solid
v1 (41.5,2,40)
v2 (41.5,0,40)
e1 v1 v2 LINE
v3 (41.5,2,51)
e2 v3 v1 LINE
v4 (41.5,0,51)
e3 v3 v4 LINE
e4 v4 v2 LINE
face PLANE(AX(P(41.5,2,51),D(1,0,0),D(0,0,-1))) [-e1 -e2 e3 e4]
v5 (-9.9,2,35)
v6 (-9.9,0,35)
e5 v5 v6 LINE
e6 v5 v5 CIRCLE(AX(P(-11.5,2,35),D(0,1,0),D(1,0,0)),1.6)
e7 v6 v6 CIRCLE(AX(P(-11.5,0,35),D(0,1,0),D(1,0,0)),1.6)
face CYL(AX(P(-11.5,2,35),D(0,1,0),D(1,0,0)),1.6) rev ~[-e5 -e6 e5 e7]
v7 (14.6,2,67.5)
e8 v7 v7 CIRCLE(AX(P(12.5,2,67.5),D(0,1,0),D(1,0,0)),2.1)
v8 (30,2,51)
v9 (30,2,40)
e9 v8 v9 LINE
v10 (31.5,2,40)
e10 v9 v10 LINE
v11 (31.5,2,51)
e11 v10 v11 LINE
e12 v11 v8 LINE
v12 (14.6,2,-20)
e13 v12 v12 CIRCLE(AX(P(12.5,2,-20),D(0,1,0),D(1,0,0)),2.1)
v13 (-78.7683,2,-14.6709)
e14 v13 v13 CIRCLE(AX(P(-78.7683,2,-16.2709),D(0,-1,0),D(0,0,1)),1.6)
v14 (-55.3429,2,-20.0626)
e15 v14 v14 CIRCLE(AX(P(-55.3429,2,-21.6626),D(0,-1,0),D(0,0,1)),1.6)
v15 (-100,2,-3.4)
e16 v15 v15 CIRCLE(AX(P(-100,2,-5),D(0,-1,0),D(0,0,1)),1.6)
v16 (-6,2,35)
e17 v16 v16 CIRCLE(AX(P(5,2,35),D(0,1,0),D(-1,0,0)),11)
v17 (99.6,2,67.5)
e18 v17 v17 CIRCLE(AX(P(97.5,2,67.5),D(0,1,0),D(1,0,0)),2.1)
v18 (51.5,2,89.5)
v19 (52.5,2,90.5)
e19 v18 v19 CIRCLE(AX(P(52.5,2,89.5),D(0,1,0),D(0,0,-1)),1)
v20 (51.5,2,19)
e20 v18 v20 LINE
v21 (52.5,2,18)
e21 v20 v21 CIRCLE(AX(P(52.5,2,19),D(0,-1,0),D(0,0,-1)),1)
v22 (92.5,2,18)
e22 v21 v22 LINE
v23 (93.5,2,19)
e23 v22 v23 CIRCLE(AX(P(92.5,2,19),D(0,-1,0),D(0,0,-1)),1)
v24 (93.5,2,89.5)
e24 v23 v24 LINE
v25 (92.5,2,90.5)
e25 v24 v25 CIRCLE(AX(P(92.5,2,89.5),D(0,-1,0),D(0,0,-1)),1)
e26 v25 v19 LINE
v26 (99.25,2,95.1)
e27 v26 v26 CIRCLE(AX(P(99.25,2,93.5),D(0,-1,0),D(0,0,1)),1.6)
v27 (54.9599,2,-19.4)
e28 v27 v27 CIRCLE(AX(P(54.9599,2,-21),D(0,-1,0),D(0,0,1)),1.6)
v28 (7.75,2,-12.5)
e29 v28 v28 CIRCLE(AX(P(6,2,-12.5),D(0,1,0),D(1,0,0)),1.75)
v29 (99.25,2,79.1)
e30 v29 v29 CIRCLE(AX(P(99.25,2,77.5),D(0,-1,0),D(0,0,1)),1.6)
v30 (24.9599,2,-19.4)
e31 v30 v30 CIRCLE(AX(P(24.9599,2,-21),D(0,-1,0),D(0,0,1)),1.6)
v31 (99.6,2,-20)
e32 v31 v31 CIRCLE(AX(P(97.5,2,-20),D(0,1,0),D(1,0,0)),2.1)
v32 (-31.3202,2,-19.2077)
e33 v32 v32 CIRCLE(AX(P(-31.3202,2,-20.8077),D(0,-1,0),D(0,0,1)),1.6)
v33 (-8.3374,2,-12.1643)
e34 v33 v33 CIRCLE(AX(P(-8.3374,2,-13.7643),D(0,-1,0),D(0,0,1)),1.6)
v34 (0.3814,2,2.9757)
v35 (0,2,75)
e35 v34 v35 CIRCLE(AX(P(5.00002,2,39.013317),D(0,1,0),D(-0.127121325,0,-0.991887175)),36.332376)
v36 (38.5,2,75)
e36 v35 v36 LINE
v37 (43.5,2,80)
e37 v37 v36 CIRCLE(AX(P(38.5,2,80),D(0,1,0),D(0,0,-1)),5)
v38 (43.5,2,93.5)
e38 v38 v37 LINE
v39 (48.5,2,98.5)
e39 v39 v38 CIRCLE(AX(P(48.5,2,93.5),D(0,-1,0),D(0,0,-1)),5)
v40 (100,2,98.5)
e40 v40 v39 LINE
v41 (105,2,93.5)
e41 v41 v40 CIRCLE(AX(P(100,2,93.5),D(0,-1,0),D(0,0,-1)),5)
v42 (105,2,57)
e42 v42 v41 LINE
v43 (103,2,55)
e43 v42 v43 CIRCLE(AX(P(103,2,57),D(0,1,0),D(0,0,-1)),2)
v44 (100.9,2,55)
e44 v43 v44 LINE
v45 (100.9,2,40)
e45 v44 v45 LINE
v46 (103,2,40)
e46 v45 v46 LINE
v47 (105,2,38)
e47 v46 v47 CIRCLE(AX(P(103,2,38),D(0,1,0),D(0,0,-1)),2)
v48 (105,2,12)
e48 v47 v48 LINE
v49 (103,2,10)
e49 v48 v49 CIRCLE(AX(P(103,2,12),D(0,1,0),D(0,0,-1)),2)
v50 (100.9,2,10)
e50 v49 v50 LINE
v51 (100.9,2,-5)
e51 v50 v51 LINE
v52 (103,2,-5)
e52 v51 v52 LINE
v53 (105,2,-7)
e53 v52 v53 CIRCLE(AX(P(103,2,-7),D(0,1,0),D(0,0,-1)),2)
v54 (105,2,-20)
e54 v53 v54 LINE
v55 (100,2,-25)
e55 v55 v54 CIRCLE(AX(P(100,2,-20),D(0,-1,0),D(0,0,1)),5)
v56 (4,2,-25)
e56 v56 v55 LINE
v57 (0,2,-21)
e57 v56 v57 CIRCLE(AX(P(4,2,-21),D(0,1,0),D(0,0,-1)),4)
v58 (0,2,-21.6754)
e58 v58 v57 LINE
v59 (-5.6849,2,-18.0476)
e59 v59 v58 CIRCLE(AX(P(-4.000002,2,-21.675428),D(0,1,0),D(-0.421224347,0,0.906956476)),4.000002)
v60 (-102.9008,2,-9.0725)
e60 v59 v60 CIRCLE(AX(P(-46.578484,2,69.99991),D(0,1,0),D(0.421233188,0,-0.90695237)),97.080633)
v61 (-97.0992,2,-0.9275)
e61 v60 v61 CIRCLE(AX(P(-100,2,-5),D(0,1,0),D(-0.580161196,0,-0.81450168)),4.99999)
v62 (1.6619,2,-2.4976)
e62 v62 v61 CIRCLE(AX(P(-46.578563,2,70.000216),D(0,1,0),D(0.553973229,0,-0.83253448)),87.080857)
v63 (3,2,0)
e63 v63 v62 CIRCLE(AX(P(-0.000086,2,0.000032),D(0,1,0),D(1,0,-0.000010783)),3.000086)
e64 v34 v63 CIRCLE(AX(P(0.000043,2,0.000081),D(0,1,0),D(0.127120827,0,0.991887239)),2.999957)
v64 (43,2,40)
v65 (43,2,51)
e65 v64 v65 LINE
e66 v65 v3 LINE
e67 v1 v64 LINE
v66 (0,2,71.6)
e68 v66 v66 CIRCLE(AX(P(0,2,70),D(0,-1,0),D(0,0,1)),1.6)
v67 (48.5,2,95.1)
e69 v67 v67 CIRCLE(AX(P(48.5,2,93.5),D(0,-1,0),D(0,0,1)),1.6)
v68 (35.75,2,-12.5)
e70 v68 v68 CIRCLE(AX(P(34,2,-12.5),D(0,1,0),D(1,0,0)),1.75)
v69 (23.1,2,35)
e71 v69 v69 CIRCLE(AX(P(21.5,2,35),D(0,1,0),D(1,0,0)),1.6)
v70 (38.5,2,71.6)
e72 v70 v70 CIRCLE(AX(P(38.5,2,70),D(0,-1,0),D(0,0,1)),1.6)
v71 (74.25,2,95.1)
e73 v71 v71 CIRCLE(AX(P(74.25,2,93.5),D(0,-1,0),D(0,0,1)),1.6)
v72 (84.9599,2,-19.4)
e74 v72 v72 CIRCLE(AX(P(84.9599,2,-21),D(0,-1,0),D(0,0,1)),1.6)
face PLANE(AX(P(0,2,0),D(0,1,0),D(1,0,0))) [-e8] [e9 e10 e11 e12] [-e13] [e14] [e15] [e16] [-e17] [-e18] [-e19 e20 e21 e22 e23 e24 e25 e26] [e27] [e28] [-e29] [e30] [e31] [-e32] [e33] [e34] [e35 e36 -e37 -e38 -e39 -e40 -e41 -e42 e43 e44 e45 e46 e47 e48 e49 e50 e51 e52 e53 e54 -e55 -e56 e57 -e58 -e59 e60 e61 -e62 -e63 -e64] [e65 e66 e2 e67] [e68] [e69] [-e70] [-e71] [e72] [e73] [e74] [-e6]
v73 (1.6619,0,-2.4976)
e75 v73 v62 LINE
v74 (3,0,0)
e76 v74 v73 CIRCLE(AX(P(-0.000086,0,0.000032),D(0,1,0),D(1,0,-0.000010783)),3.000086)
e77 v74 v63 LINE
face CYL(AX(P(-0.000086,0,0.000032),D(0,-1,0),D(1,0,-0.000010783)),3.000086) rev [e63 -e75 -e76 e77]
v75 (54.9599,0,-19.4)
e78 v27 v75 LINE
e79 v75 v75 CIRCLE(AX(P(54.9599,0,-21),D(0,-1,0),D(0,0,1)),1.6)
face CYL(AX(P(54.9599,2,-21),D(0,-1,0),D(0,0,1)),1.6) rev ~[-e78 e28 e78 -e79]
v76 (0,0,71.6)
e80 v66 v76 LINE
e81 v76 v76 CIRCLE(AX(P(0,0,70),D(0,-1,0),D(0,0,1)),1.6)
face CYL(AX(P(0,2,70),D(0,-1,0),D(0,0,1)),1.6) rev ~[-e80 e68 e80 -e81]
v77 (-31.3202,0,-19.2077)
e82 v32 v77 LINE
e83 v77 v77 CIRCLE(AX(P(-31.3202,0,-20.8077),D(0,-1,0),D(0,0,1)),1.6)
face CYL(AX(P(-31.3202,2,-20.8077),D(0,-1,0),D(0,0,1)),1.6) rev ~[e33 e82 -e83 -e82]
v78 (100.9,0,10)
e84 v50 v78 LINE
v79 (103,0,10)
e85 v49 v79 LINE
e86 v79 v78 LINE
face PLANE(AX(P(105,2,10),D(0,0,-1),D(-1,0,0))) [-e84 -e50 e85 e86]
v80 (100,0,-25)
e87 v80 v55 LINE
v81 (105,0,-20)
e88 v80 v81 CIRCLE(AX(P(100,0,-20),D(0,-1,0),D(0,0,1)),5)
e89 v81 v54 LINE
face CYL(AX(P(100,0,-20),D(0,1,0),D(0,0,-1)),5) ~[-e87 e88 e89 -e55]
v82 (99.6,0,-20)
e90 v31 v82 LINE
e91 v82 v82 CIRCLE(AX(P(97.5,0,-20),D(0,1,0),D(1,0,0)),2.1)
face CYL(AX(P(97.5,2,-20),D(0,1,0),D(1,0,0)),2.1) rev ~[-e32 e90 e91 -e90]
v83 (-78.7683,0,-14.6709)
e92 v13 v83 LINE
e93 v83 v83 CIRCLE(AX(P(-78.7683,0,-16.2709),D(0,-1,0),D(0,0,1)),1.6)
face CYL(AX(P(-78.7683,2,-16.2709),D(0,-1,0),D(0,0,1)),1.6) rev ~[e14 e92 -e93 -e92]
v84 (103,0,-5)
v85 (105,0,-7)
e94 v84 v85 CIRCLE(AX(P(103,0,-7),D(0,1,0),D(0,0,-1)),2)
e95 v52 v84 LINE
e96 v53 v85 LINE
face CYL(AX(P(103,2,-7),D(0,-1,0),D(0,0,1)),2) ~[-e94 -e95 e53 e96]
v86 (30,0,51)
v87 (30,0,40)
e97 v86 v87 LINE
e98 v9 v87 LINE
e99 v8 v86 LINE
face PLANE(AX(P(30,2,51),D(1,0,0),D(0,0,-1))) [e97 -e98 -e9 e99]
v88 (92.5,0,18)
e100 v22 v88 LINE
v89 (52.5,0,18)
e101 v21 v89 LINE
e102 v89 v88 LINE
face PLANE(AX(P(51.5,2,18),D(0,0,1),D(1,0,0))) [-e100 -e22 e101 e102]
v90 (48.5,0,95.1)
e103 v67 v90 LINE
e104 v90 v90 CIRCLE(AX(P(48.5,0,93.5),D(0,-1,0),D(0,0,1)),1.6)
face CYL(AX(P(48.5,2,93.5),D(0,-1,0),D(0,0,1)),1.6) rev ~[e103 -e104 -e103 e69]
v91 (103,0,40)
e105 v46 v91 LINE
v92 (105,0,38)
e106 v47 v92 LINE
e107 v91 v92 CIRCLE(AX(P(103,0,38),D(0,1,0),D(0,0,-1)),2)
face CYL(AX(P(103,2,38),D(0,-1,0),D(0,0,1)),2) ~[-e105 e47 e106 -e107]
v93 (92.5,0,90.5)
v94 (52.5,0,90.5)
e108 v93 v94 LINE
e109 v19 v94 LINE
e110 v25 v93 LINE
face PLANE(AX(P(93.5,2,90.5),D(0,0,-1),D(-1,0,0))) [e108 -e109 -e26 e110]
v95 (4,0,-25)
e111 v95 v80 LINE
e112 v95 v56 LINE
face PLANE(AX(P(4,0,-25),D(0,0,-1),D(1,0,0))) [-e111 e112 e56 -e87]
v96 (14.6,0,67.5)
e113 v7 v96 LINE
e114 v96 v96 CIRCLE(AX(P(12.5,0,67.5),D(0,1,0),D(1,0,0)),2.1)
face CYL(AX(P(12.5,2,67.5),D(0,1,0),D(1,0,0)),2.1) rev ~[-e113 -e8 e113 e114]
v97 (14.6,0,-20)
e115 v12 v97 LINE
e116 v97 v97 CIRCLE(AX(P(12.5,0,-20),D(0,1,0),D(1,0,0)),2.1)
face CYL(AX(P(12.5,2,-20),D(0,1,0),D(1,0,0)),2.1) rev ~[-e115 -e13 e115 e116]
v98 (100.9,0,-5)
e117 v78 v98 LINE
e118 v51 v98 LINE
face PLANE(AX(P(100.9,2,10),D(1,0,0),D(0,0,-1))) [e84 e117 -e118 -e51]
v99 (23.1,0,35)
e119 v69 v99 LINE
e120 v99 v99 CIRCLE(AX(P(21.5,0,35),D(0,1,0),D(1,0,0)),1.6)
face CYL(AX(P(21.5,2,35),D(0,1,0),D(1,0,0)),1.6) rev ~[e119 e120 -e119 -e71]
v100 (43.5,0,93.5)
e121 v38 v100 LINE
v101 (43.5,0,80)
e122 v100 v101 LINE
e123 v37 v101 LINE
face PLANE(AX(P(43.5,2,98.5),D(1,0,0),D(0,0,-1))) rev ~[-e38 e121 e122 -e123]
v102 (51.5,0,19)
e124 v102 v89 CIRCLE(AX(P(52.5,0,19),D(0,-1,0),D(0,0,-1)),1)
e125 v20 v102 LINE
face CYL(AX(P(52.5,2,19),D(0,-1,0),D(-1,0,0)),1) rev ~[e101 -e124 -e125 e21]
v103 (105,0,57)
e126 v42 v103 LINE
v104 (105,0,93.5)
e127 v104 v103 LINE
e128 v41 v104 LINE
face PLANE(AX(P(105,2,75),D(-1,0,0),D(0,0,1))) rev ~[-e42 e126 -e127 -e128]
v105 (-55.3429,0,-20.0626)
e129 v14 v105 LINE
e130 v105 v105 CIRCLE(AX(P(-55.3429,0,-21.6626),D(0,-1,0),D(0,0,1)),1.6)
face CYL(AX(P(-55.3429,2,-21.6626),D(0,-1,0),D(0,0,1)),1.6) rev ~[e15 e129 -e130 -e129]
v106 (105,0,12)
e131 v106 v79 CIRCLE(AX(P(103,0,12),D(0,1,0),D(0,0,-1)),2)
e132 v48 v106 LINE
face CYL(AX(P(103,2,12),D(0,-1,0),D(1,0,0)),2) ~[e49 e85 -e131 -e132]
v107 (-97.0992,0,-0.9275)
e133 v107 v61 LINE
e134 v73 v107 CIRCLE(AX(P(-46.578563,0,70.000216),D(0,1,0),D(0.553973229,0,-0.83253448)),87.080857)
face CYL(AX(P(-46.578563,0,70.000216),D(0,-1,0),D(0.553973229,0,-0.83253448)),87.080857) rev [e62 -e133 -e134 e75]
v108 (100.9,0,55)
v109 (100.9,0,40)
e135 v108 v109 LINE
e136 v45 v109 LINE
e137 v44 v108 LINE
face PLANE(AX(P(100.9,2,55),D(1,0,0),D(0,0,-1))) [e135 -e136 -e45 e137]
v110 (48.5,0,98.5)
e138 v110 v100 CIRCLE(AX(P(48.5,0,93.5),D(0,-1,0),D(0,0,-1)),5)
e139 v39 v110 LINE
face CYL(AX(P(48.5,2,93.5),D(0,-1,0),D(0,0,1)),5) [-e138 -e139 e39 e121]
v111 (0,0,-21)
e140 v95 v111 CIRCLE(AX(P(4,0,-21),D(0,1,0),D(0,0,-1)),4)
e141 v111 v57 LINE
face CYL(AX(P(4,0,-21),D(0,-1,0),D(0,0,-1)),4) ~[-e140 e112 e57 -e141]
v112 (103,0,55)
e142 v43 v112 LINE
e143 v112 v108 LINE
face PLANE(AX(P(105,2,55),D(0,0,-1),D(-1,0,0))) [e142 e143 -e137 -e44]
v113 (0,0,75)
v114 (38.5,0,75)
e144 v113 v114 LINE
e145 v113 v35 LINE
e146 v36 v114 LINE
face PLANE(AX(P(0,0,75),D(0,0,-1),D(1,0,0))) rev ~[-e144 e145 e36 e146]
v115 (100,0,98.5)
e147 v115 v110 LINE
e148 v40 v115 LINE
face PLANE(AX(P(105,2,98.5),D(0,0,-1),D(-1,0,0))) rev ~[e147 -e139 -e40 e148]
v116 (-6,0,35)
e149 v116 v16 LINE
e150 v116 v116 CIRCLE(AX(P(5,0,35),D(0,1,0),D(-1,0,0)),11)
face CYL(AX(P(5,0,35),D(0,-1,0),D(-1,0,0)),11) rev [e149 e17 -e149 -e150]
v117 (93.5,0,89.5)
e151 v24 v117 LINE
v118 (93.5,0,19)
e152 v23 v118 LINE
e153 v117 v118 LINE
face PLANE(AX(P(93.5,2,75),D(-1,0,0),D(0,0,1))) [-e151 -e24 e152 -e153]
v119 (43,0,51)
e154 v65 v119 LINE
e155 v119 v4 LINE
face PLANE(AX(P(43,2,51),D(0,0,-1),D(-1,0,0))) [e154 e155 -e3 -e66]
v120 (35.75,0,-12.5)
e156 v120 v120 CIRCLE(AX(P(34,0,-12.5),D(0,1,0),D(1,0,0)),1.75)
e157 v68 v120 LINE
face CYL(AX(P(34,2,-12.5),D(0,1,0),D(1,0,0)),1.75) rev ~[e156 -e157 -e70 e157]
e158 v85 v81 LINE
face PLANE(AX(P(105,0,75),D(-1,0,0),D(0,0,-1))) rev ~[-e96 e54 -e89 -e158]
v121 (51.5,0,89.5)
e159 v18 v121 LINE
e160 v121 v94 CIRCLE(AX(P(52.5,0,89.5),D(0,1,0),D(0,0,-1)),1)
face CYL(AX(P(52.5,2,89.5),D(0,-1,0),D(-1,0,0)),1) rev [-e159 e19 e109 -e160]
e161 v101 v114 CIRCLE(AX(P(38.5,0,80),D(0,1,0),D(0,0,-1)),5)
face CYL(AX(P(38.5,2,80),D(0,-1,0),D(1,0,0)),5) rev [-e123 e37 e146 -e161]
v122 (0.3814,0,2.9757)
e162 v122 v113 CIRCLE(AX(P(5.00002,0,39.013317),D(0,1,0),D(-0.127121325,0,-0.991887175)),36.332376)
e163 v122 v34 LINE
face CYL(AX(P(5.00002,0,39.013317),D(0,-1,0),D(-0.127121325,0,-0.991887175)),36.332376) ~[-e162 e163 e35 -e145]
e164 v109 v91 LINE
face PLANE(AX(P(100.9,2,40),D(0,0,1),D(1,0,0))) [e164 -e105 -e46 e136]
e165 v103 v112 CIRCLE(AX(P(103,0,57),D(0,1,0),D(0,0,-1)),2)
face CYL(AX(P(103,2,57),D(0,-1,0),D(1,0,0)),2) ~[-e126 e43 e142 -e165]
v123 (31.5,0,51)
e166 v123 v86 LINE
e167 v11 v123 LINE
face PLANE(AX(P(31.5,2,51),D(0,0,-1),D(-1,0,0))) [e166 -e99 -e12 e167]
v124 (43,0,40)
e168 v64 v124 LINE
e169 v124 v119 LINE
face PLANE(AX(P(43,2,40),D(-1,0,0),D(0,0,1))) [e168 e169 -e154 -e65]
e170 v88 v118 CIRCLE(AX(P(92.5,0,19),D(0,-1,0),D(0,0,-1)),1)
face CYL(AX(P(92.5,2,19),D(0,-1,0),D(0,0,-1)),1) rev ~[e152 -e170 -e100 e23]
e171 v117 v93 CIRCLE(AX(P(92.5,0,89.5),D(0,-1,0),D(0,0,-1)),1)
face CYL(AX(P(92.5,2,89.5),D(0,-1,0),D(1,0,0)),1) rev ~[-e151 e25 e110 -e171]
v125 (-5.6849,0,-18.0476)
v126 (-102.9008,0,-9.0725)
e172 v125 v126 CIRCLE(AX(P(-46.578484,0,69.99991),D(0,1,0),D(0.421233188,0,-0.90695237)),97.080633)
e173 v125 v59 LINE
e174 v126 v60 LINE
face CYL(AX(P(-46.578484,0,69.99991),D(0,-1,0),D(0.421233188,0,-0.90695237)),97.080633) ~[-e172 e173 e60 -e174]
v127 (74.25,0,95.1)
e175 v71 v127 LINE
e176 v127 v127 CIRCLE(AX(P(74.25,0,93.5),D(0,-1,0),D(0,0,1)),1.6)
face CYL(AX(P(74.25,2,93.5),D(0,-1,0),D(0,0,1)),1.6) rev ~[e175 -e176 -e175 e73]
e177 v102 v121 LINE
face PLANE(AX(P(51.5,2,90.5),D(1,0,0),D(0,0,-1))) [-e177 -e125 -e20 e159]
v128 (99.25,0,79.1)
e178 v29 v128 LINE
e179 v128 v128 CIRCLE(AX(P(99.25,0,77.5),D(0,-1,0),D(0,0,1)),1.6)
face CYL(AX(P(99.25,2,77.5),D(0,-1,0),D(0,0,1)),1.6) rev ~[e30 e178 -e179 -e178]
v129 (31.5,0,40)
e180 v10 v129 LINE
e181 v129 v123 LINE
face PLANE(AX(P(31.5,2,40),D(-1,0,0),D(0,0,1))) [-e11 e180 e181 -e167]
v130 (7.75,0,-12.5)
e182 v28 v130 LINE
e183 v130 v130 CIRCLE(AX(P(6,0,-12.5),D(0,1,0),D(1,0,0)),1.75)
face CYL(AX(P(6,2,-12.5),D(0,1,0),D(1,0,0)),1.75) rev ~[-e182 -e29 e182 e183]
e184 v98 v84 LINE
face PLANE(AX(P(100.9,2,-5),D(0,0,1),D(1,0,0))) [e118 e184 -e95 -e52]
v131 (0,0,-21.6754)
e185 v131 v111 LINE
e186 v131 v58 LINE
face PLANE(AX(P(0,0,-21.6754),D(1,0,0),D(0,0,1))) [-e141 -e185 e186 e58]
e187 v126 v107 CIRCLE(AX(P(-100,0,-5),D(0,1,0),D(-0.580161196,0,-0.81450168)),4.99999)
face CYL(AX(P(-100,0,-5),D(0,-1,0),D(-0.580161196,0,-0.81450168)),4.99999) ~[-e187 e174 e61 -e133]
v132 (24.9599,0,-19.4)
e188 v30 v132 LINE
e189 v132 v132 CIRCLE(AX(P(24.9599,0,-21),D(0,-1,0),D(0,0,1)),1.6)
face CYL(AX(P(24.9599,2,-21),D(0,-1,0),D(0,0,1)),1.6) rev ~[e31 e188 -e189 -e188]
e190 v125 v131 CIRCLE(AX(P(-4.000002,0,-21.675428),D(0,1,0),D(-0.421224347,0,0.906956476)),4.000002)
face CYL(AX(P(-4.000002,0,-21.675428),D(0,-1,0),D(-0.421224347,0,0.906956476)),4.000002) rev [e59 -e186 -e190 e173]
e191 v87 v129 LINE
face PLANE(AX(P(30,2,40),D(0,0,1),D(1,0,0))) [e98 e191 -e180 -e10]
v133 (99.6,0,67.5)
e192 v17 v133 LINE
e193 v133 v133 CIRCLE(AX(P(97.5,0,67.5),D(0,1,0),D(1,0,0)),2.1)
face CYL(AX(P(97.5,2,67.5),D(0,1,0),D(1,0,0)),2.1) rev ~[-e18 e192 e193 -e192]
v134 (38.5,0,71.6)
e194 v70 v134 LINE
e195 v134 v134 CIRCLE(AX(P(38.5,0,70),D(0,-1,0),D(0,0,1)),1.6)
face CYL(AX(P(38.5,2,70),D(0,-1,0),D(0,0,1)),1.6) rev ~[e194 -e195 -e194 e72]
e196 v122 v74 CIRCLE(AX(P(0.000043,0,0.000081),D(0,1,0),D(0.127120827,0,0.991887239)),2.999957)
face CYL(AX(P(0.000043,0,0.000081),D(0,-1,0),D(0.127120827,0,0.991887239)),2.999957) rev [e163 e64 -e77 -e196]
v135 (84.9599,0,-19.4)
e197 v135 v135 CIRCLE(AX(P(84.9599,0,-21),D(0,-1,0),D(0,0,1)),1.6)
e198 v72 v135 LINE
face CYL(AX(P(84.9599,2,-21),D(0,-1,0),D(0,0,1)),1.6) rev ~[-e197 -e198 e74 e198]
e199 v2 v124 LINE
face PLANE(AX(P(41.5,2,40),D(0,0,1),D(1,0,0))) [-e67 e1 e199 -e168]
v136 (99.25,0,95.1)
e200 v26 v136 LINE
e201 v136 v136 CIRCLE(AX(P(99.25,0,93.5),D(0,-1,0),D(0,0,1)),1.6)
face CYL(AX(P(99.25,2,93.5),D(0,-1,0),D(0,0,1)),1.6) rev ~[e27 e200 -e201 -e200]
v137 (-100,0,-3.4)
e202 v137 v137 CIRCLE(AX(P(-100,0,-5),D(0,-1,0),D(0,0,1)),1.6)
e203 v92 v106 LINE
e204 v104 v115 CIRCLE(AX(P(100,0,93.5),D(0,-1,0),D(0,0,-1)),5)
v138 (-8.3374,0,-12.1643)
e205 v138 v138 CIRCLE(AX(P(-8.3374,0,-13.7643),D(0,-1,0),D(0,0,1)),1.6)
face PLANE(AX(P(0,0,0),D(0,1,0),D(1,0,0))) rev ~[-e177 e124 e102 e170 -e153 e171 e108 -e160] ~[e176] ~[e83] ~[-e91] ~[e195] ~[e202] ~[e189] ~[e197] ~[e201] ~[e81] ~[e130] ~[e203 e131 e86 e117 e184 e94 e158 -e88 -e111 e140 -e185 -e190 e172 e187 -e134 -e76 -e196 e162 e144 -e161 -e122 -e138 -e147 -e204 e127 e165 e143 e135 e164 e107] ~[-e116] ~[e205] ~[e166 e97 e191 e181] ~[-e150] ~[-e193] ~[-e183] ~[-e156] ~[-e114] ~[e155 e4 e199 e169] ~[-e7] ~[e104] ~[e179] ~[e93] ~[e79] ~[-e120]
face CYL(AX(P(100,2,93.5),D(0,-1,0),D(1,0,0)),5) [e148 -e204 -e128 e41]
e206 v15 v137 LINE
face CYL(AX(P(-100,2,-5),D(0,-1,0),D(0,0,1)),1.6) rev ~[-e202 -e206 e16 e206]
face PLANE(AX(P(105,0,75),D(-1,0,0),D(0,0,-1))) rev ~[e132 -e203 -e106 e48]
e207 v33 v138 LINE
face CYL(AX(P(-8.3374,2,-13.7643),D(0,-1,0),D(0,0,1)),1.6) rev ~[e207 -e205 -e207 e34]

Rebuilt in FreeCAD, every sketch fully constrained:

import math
import FreeCAD as App
import Part
import Sketcher
from FreeCAD import Vector


def edges_at(feature, points):
    """Names of the edges that pass closest to the given points."""
    edges = feature.Shape.Edges
    near = lambda p: min(range(len(edges)), key=lambda i: edges[i].distToShape(Part.Vertex(*p))[0])
    return sorted({f"Edge{near(p) + 1}" for p in points})

doc = App.newDocument("Part")
body = doc.addObject("PartDesign::Body", "Body")

# Sketch on XZ plane
sketch1 = body.newObject("Sketcher::SketchObject", "Sketch")
sketch1.AttachmentSupport = (doc.getObject("XZ_Plane"), [""])
sketch1.MapMode = "FlatFace"
sketch1.addGeometry([
    Part.ArcOfCircle(Part.Circle(Vector(0, 0, 0), Vector(0, 0, 1), 3), math.radians(0), math.radians(83)),  # 0
    Part.ArcOfCircle(Part.Circle(Vector(5, 39, 0), Vector(0, 0, 1), 36.3), math.radians(98), math.radians(263)),  # 1
    Part.LineSegment(Vector(0, 75, 0), Vector(105, 75, 0)),  # 2
    Part.LineSegment(Vector(105, 75, 0), Vector(105, -25, 0)),  # 3
    Part.LineSegment(Vector(105, -25, 0), Vector(4, -25, 0)),  # 4
    Part.ArcOfCircle(Part.Circle(Vector(4, -21, 0), Vector(0, 0, 1), 4), math.radians(180), math.radians(270)),  # 5
    Part.LineSegment(Vector(0, -21, 0), Vector(0, -21.7, 0)),  # 6
    Part.ArcOfCircle(Part.Circle(Vector(-4, -21.7, 0), Vector(0, 0, 1), 4), math.radians(0), math.radians(115)),  # 7
    Part.ArcOfCircle(Part.Circle(Vector(-46.6, 70, 0), Vector(0, 0, 1), 97.1), math.radians(-125), math.radians(-65)),  # 8
    Part.ArcOfCircle(Part.Circle(Vector(-100, -5, 0), Vector(0, 0, 1), 5), math.radians(55), math.radians(235)),  # 9
    Part.ArcOfCircle(Part.Circle(Vector(-46.6, 70, 0), Vector(0, 0, 1), 87.1), math.radians(-125), math.radians(-56)),  # 10
    Part.ArcOfCircle(Part.Circle(Vector(0, 0, 0), Vector(0, 0, 1), 3), math.radians(-56), math.radians(0)),  # 11
    Part.Circle(Vector(5, 35, 0), Vector(0, 0, 1), 11),  # 12
], False)
sketch1.addConstraint([
    Sketcher.Constraint("Tangent", 0, 2, 1, 2),
    Sketcher.Constraint("Coincident", 1, 1, 2, 1),
    Sketcher.Constraint("Coincident", 2, 2, 3, 1),
    Sketcher.Constraint("Coincident", 3, 2, 4, 1),
    Sketcher.Constraint("Tangent", 4, 2, 5, 2),
    Sketcher.Constraint("Tangent", 5, 1, 6, 1),
    Sketcher.Constraint("Tangent", 6, 2, 7, 1),
    Sketcher.Constraint("Tangent", 7, 2, 8, 2),
    Sketcher.Constraint("Tangent", 8, 1, 9, 2),
    Sketcher.Constraint("Tangent", 9, 1, 10, 1),
    Sketcher.Constraint("Tangent", 10, 2, 11, 1),
    Sketcher.Constraint("Tangent", 11, 2, 0, 1),
    Sketcher.Constraint("Horizontal", 2),
    Sketcher.Constraint("Vertical", 3),
    Sketcher.Constraint("Horizontal", 4),
    Sketcher.Constraint("Vertical", 6),
    Sketcher.Constraint("Coincident", 0, 3, -1, 1),
    Sketcher.Constraint("Coincident", 10, 3, 8, 3),
    Sketcher.Constraint("Equal", 5, 7),
    Sketcher.Constraint("Equal", 0, 11),
    Sketcher.Constraint("PointOnObject", 1, 1, -2),
    Sketcher.Constraint("PointOnObject", 5, 1, -2),
    Sketcher.Constraint("PointOnObject", 11, 2, -1),
    Sketcher.Constraint("Vertical", 1, 3, 12, 3),
    Sketcher.Constraint("Diameter", 12, 22.0),
    Sketcher.Constraint("Radius", 0, 3.0),
    Sketcher.Constraint("Radius", 5, 4.0),
    Sketcher.Constraint("Radius", 9, 5.0),
    Sketcher.Constraint("DistanceX", 2, 1, 2, 2, 105.0),
    Sketcher.Constraint("DistanceY", 3, 2, 3, 1, 100.0),
    Sketcher.Constraint("DistanceX", -1, 1, 1, 3, 5.0),
    Sketcher.Constraint("DistanceY", -1, 1, 8, 3, 70.0),
    Sketcher.Constraint("DistanceX", 9, 3, -1, 1, 100.0),
    Sketcher.Constraint("DistanceY", 9, 3, -1, 1, 5.0),
    Sketcher.Constraint("DistanceY", -1, 1, 12, 3, 35.0),
    Sketcher.Constraint("DistanceY", -1, 1, 1, 1, 75.0),
])
pad1 = body.newObject("PartDesign::Pad", "Pad")
pad1.Profile = sketch1
pad1.Length = 2
pad1.Reversed = True

# Sketch on XZ plane
sketch2 = body.newObject("Sketcher::SketchObject", "Sketch001")
sketch2.AttachmentSupport = (doc.getObject("XZ_Plane"), [""])
sketch2.MapMode = "FlatFace"
sketch2.AttachmentOffset = App.Placement(Vector(0, 0, -2), App.Rotation())
sketch2.addGeometry([
    Part.Circle(Vector(12.5, 67.5, 0), Vector(0, 0, 1), 2.1),
    Part.Circle(Vector(97.5, 67.5, 0), Vector(0, 0, 1), 2.1),
    Part.Circle(Vector(97.5, -20, 0), Vector(0, 0, 1), 2.1),
    Part.Circle(Vector(12.5, -20, 0), Vector(0, 0, 1), 2.1),
], False)
sketch2.addConstraint([
    Sketcher.Constraint("Equal", 0, 1),
    Sketcher.Constraint("Equal", 1, 2),
    Sketcher.Constraint("Equal", 2, 3),
    Sketcher.Constraint("Horizontal", 0, 3, 1, 3),
    Sketcher.Constraint("Horizontal", 2, 3, 3, 3),
    Sketcher.Constraint("Vertical", 1, 3, 2, 3),
    Sketcher.Constraint("Vertical", 0, 3, 3, 3),
    Sketcher.Constraint("Diameter", 0, 4.2),
    Sketcher.Constraint("DistanceX", 0, 3, 1, 3, 85.0),
    Sketcher.Constraint("DistanceY", 2, 3, 1, 3, 87.5),
    Sketcher.Constraint("DistanceY", 2, 3, -1, 1, 20.0),
    Sketcher.Constraint("DistanceX", -1, 1, 0, 3, 12.5),
])
pocket1 = body.newObject("PartDesign::Pocket", "Pocket")
pocket1.Profile = sketch2
pocket1.Length = 2
pocket1.Reversed = True

# Sketch on XZ plane
sketch3 = body.newObject("Sketcher::SketchObject", "Sketch002")
sketch3.AttachmentSupport = (doc.getObject("XZ_Plane"), [""])
sketch3.MapMode = "FlatFace"
sketch3.AttachmentOffset = App.Placement(Vector(0, 0, -2), App.Rotation())
sketch3.addGeometry([
    Part.LineSegment(Vector(100.9, 55, 0), Vector(105, 55, 0)),  # 0
    Part.LineSegment(Vector(105, 55, 0), Vector(105, 40, 0)),  # 1
    Part.LineSegment(Vector(105, 40, 0), Vector(100.9, 40, 0)),  # 2
    Part.LineSegment(Vector(100.9, 40, 0), Vector(100.9, 55, 0)),  # 3
    Part.LineSegment(Vector(100.9, 10, 0), Vector(105, 10, 0)),  # 4
    Part.LineSegment(Vector(105, 10, 0), Vector(105, -5, 0)),  # 5
    Part.LineSegment(Vector(105, -5, 0), Vector(100.9, -5, 0)),  # 6
    Part.LineSegment(Vector(100.9, -5, 0), Vector(100.9, 10, 0)),  # 7
], False)
sketch3.addConstraint([
    Sketcher.Constraint("Coincident", 0, 2, 1, 1),
    Sketcher.Constraint("Coincident", 1, 2, 2, 1),
    Sketcher.Constraint("Coincident", 2, 2, 3, 1),
    Sketcher.Constraint("Coincident", 3, 2, 0, 1),
    Sketcher.Constraint("Coincident", 4, 2, 5, 1),
    Sketcher.Constraint("Coincident", 5, 2, 6, 1),
    Sketcher.Constraint("Coincident", 6, 2, 7, 1),
    Sketcher.Constraint("Coincident", 7, 2, 4, 1),
    Sketcher.Constraint("Horizontal", 0),
    Sketcher.Constraint("Vertical", 1),
    Sketcher.Constraint("Horizontal", 2),
    Sketcher.Constraint("Vertical", 3),
    Sketcher.Constraint("Horizontal", 4),
    Sketcher.Constraint("Vertical", 5),
    Sketcher.Constraint("Horizontal", 6),
    Sketcher.Constraint("Vertical", 7),
    Sketcher.Constraint("Vertical", 1, 2, 4, 2),
    Sketcher.Constraint("Vertical", 3, 2, 6, 2),
    Sketcher.Constraint("Equal", 3, 5),
    Sketcher.Constraint("DistanceY", 1, 2, 1, 1, 15.0),
    Sketcher.Constraint("DistanceX", 0, 1, 0, 2, 4.1),
    Sketcher.Constraint("DistanceY", 4, 2, 1, 2, 30.0),
    Sketcher.Constraint("DistanceX", -1, 1, 0, 2, 105.0),
    Sketcher.Constraint("DistanceY", -1, 1, 0, 2, 55.0),
])
pocket2 = body.newObject("PartDesign::Pocket", "Pocket001")
pocket2.Profile = sketch3
pocket2.Length = 2
pocket2.Reversed = True

# Sketch on XZ plane
sketch4 = body.newObject("Sketcher::SketchObject", "Sketch003")
sketch4.AttachmentSupport = (doc.getObject("XZ_Plane"), [""])
sketch4.MapMode = "FlatFace"
sketch4.AttachmentOffset = App.Placement(Vector(0, 0, -2), App.Rotation())
sketch4.addGeometry([
    Part.Circle(Vector(-11.5, 35, 0), Vector(0, 0, 1), 1.6),
    Part.Circle(Vector(21.5, 35, 0), Vector(0, 0, 1), 1.6),
], False)
sketch4.addConstraint([
    Sketcher.Constraint("Equal", 0, 1),
    Sketcher.Constraint("Horizontal", 0, 3, 1, 3),
    Sketcher.Constraint("Diameter", 0, 3.2),
    Sketcher.Constraint("DistanceX", 0, 3, 1, 3, 33.0),
    Sketcher.Constraint("DistanceY", -1, 1, 0, 3, 35.0),
    Sketcher.Constraint("DistanceX", 0, 3, -1, 1, 11.5),
])
pocket3 = body.newObject("PartDesign::Pocket", "Pocket002")
pocket3.Profile = sketch4
pocket3.Type = "ThroughAll"
pocket3.Reversed = True
doc.recompute()

fillet = body.newObject("PartDesign::Fillet", "Fillet")
fillet.Base = (pocket3, edges_at(pocket3, [(105, 1, -25)]))
fillet.Radius = 5

# Sketch on XZ plane
sketch5 = body.newObject("Sketcher::SketchObject", "Sketch004")
sketch5.AttachmentSupport = (doc.getObject("XZ_Plane"), [""])
sketch5.MapMode = "FlatFace"
sketch5.AttachmentOffset = App.Placement(Vector(0, 0, -2), App.Rotation())
sketch5.addGeometry([
    Part.Circle(Vector(6, -12.5, 0), Vector(0, 0, 1), 1.8),
    Part.Circle(Vector(34, -12.5, 0), Vector(0, 0, 1), 1.8),
], False)
sketch5.addConstraint([
    Sketcher.Constraint("Equal", 0, 1),
    Sketcher.Constraint("Horizontal", 0, 3, 1, 3),
    Sketcher.Constraint("Diameter", 0, 3.5),
    Sketcher.Constraint("DistanceX", -1, 1, 0, 3, 6.0),
    Sketcher.Constraint("DistanceX", 0, 3, 1, 3, 28.0),
    Sketcher.Constraint("DistanceY", 0, 3, -1, 1, 12.5),
])
pocket4 = body.newObject("PartDesign::Pocket", "Pocket003")
pocket4.Profile = sketch5
pocket4.Type = "ThroughAll"
pocket4.Reversed = True

# Sketch on XZ plane
sketch6 = body.newObject("Sketcher::SketchObject", "Sketch005")
sketch6.AttachmentSupport = (doc.getObject("XZ_Plane"), [""])
sketch6.MapMode = "FlatFace"
sketch6.AttachmentOffset = App.Placement(Vector(0, 0, -2), App.Rotation())
sketch6.addGeometry([
    Part.LineSegment(Vector(52, 75, 0), Vector(94, 75, 0)),
    Part.LineSegment(Vector(94, 75, 0), Vector(94, 18, 0)),
    Part.LineSegment(Vector(94, 18, 0), Vector(52, 18, 0)),
    Part.LineSegment(Vector(52, 18, 0), Vector(52, 75, 0)),
], False)
sketch6.addConstraint([
    Sketcher.Constraint("Coincident", 0, 2, 1, 1),
    Sketcher.Constraint("Coincident", 1, 2, 2, 1),
    Sketcher.Constraint("Coincident", 2, 2, 3, 1),
    Sketcher.Constraint("Coincident", 3, 2, 0, 1),
    Sketcher.Constraint("Horizontal", 0),
    Sketcher.Constraint("Vertical", 1),
    Sketcher.Constraint("Horizontal", 2),
    Sketcher.Constraint("Vertical", 3),
    Sketcher.Constraint("DistanceX", 0, 1, 0, 2, 42.0),
    Sketcher.Constraint("DistanceY", 1, 2, 1, 1, 57.0),
    Sketcher.Constraint("DistanceX", -1, 1, 2, 2, 51.5),
    Sketcher.Constraint("DistanceY", -1, 1, 0, 2, 75.0),
])
pocket5 = body.newObject("PartDesign::Pocket", "Pocket004")
pocket5.Profile = sketch6
pocket5.Type = "ThroughAll"
pocket5.Reversed = True

# Sketch on XZ plane
sketch7 = body.newObject("Sketcher::SketchObject", "Sketch006")
sketch7.AttachmentSupport = (doc.getObject("XZ_Plane"), [""])
sketch7.MapMode = "FlatFace"
sketch7.AttachmentOffset = App.Placement(Vector(0, 0, -2), App.Rotation())
sketch7.addGeometry([
    Part.LineSegment(Vector(105, 75, 0), Vector(94, 75, 0)),  # 0
    Part.LineSegment(Vector(94, 75, 0), Vector(94, 90, 0)),  # 1
    Part.LineSegment(Vector(94, 90, 0), Vector(52, 90, 0)),  # 2
    Part.LineSegment(Vector(52, 90, 0), Vector(52, 75, 0)),  # 3
    Part.LineSegment(Vector(52, 75, 0), Vector(44, 75, 0)),  # 4
    Part.LineSegment(Vector(44, 75, 0), Vector(44, 98, 0)),  # 5
    Part.LineSegment(Vector(44, 98, 0), Vector(105, 98, 0)),  # 6
    Part.LineSegment(Vector(105, 98, 0), Vector(105, 75, 0)),  # 7
], False)
sketch7.addConstraint([
    Sketcher.Constraint("Coincident", 0, 2, 1, 1),
    Sketcher.Constraint("Coincident", 1, 2, 2, 1),
    Sketcher.Constraint("Coincident", 2, 2, 3, 1),
    Sketcher.Constraint("Coincident", 3, 2, 4, 1),
    Sketcher.Constraint("Coincident", 4, 2, 5, 1),
    Sketcher.Constraint("Coincident", 5, 2, 6, 1),
    Sketcher.Constraint("Coincident", 6, 2, 7, 1),
    Sketcher.Constraint("Coincident", 7, 2, 0, 1),
    Sketcher.Constraint("Horizontal", 0),
    Sketcher.Constraint("Vertical", 1),
    Sketcher.Constraint("Horizontal", 2),
    Sketcher.Constraint("Vertical", 3),
    Sketcher.Constraint("Horizontal", 4),
    Sketcher.Constraint("Vertical", 5),
    Sketcher.Constraint("Horizontal", 6),
    Sketcher.Constraint("Vertical", 7),
    Sketcher.Constraint("Horizontal", 0, 2, 3, 2),
    Sketcher.Constraint("DistanceX", 4, 2, 4, 1, 8.0),
    Sketcher.Constraint("DistanceY", 1, 1, 1, 2, 15.5),
    Sketcher.Constraint("DistanceY", 2, 2, 5, 2, 8.0),
    Sketcher.Constraint("DistanceX", 2, 2, 2, 1, 42.0),
    Sketcher.Constraint("DistanceX", 0, 2, 0, 1, 11.5),
    Sketcher.Constraint("DistanceY", -1, 1, 0, 2, 75.0),
    Sketcher.Constraint("DistanceX", -1, 1, 6, 2, 105.0),
])
pad2 = body.newObject("PartDesign::Pad", "Pad001")
pad2.Profile = sketch7
pad2.Length = 2
doc.recompute()

fillet2 = body.newObject("PartDesign::Fillet", "Fillet001")
fillet2.Base = (pad2, edges_at(pad2, [(43.5, 1, 75), (43.5, 1, 98.5), (105, 1, 98.5)]))
fillet2.Radius = 5
doc.recompute()

fillet3 = body.newObject("PartDesign::Fillet", "Fillet002")
fillet3.Base = (fillet2, edges_at(fillet2, [
    (51.5, 1, 18),
    (93.5, 1, 18),
    (93.5, 1, 90.5),
    (51.5, 1, 90.5),
]))
fillet3.Radius = 1
doc.recompute()

fillet4 = body.newObject("PartDesign::Fillet", "Fillet003")
fillet4.Base = (fillet3, edges_at(fillet3, [
    (105, 1, 55),
    (105, 1, 40),
    (105, 1, 10),
    (105, 1, -5),
]))
fillet4.Radius = 2

# Sketch on XZ plane
sketch8 = body.newObject("Sketcher::SketchObject", "Sketch007")
sketch8.AttachmentSupport = (doc.getObject("XZ_Plane"), [""])
sketch8.MapMode = "FlatFace"
sketch8.AttachmentOffset = App.Placement(Vector(0, 0, -2), App.Rotation())
sketch8.addGeometry([
    Part.Circle(Vector(99.2, 77.5, 0), Vector(0, 0, 1), 1.6),
    Part.Circle(Vector(99.2, 93.5, 0), Vector(0, 0, 1), 1.6),
], False)
sketch8.addConstraint([
    Sketcher.Constraint("Equal", 0, 1),
    Sketcher.Constraint("Vertical", 0, 3, 1, 3),
    Sketcher.Constraint("Diameter", 0, 3.2),
    Sketcher.Constraint("DistanceY", 0, 3, 1, 3, 16.0),
    Sketcher.Constraint("DistanceY", -1, 1, 0, 3, 77.5),
    Sketcher.Constraint("DistanceX", -1, 1, 0, 3, 99.25),
])
doc.recompute()
hole = body.newObject("PartDesign::Hole", "Hole")
hole.Profile = sketch8
hole.ThreadType = "None"
hole.Diameter = 3.2
hole.DepthType = "ThroughAll"
hole.Reversed = True

# Sketch on XZ plane
sketch9 = body.newObject("Sketcher::SketchObject", "Sketch008")
sketch9.AttachmentSupport = (doc.getObject("XZ_Plane"), [""])
sketch9.MapMode = "FlatFace"
sketch9.AttachmentOffset = App.Placement(Vector(0, 0, -2), App.Rotation())
sketch9.addGeometry([
    Part.Circle(Vector(-100, -5, 0), Vector(0, 0, 1), 1.6),  # 0
    Part.Circle(Vector(25, -21, 0), Vector(0, 0, 1), 1.6),  # 1
    Part.Circle(Vector(55, -21, 0), Vector(0, 0, 1), 1.6),  # 2
    Part.Circle(Vector(85, -21, 0), Vector(0, 0, 1), 1.6),  # 3
    Part.Circle(Vector(0, 70, 0), Vector(0, 0, 1), 1.6),  # 4
    Part.Circle(Vector(38.5, 70, 0), Vector(0, 0, 1), 1.6),  # 5
    Part.Circle(Vector(48.5, 93.5, 0), Vector(0, 0, 1), 1.6),  # 6
    Part.Circle(Vector(74.2, 93.5, 0), Vector(0, 0, 1), 1.6),  # 7
    Part.Circle(Vector(-78.8, -16.3, 0), Vector(0, 0, 1), 1.6),  # 8
    Part.Circle(Vector(-55.3, -21.7, 0), Vector(0, 0, 1), 1.6),  # 9
    Part.Circle(Vector(-31.3, -20.8, 0), Vector(0, 0, 1), 1.6),  # 10
    Part.Circle(Vector(-8.3, -13.8, 0), Vector(0, 0, 1), 1.6),  # 11
], False)
sketch9.addConstraint([
    Sketcher.Constraint("Equal", 0, 1),
    Sketcher.Constraint("Equal", 1, 2),
    Sketcher.Constraint("Equal", 2, 3),
    Sketcher.Constraint("Equal", 3, 4),
    Sketcher.Constraint("Equal", 4, 5),
    Sketcher.Constraint("Equal", 5, 6),
    Sketcher.Constraint("Equal", 6, 7),
    Sketcher.Constraint("Equal", 7, 8),
    Sketcher.Constraint("Equal", 8, 9),
    Sketcher.Constraint("Equal", 9, 10),
    Sketcher.Constraint("Equal", 10, 11),
    Sketcher.Constraint("PointOnObject", 4, 3, -2),
    Sketcher.Constraint("Horizontal", 1, 3, 2, 3),
    Sketcher.Constraint("Horizontal", 2, 3, 3, 3),
    Sketcher.Constraint("Horizontal", 4, 3, 5, 3),
    Sketcher.Constraint("Horizontal", 6, 3, 7, 3),
    Sketcher.Constraint("Diameter", 0, 3.2),
    Sketcher.Constraint("DistanceX", 0, 3, -1, 1, 100.0),
    Sketcher.Constraint("DistanceY", 0, 3, -1, 1, 5.0),
    Sketcher.Constraint("DistanceY", 1, 3, -1, 1, 21.0),
    Sketcher.Constraint("DistanceY", -1, 1, 4, 3, 70.0),
    Sketcher.Constraint("DistanceX", 1, 3, 2, 3, 30.0),
    Sketcher.Constraint("DistanceX", 2, 3, 3, 3, 30.0),
    Sketcher.Constraint("DistanceX", 5, 3, 6, 3, 10.0),
    Sketcher.Constraint("DistanceX", -1, 1, 5, 3, 38.5),
    Sketcher.Constraint("DistanceY", -1, 1, 6, 3, 93.5),
    Sketcher.Constraint("DistanceX", -1, 1, 1, 3, 24.96),
    Sketcher.Constraint("DistanceX", -1, 1, 7, 3, 74.25),
    Sketcher.Constraint("DistanceX", 10, 3, 1, 3, 56.28),
    Sketcher.Constraint("DistanceY", 8, 3, -1, 1, 16.271),
    Sketcher.Constraint("DistanceX", 9, 3, -1, 1, 55.343),
    Sketcher.Constraint("DistanceY", 9, 3, 10, 3, 0.855),
    Sketcher.Constraint("DistanceX", 8, 3, 10, 3, 47.448),
    Sketcher.Constraint("DistanceX", 8, 3, 11, 3, 70.431),
    Sketcher.Constraint("DistanceY", 9, 3, -1, 1, 21.6626),
    Sketcher.Constraint("DistanceY", 11, 3, -1, 1, 13.7643),
])
doc.recompute()
hole2 = body.newObject("PartDesign::Hole", "Hole001")
hole2.Profile = sketch9
hole2.ThreadType = "None"
hole2.Diameter = 3.2
hole2.DepthType = "ThroughAll"
hole2.Reversed = True

# Sketch on XZ plane
sketch10 = body.newObject("Sketcher::SketchObject", "Sketch009")
sketch10.AttachmentSupport = (doc.getObject("XZ_Plane"), [""])
sketch10.MapMode = "FlatFace"
sketch10.AttachmentOffset = App.Placement(Vector(0, 0, -2), App.Rotation())
sketch10.addGeometry([
    Part.LineSegment(Vector(31.5, 40, 0), Vector(30, 40, 0)),  # 0
    Part.LineSegment(Vector(30, 40, 0), Vector(30, 51, 0)),  # 1
    Part.LineSegment(Vector(30, 51, 0), Vector(31.5, 51, 0)),  # 2
    Part.LineSegment(Vector(31.5, 51, 0), Vector(31.5, 40, 0)),  # 3
    Part.LineSegment(Vector(43, 40, 0), Vector(41.5, 40, 0)),  # 4
    Part.LineSegment(Vector(41.5, 40, 0), Vector(41.5, 51, 0)),  # 5
    Part.LineSegment(Vector(41.5, 51, 0), Vector(43, 51, 0)),  # 6
    Part.LineSegment(Vector(43, 51, 0), Vector(43, 40, 0)),  # 7
], False)
sketch10.addConstraint([
    Sketcher.Constraint("Coincident", 0, 2, 1, 1),
    Sketcher.Constraint("Coincident", 1, 2, 2, 1),
    Sketcher.Constraint("Coincident", 2, 2, 3, 1),
    Sketcher.Constraint("Coincident", 3, 2, 0, 1),
    Sketcher.Constraint("Coincident", 4, 2, 5, 1),
    Sketcher.Constraint("Coincident", 5, 2, 6, 1),
    Sketcher.Constraint("Coincident", 6, 2, 7, 1),
    Sketcher.Constraint("Coincident", 7, 2, 4, 1),
    Sketcher.Constraint("Horizontal", 0),
    Sketcher.Constraint("Vertical", 1),
    Sketcher.Constraint("Horizontal", 2),
    Sketcher.Constraint("Vertical", 3),
    Sketcher.Constraint("Horizontal", 4),
    Sketcher.Constraint("Vertical", 5),
    Sketcher.Constraint("Horizontal", 6),
    Sketcher.Constraint("Vertical", 7),
    Sketcher.Constraint("Horizontal", 3, 2, 4, 2),
    Sketcher.Constraint("Horizontal", 2, 2, 5, 2),
    Sketcher.Constraint("Equal", 2, 4),
    Sketcher.Constraint("DistanceY", 1, 1, 1, 2, 11.0),
    Sketcher.Constraint("DistanceX", 0, 2, 0, 1, 1.5),
    Sketcher.Constraint("DistanceX", -1, 1, 0, 2, 30.0),
    Sketcher.Constraint("DistanceY", -1, 1, 0, 2, 40.0),
    Sketcher.Constraint("DistanceX", 3, 2, 4, 2, 10.0),
])
pocket6 = body.newObject("PartDesign::Pocket", "Pocket005")
pocket6.Profile = sketch10
pocket6.Type = "ThroughAll"
pocket6.Reversed = True

doc.recompute()
